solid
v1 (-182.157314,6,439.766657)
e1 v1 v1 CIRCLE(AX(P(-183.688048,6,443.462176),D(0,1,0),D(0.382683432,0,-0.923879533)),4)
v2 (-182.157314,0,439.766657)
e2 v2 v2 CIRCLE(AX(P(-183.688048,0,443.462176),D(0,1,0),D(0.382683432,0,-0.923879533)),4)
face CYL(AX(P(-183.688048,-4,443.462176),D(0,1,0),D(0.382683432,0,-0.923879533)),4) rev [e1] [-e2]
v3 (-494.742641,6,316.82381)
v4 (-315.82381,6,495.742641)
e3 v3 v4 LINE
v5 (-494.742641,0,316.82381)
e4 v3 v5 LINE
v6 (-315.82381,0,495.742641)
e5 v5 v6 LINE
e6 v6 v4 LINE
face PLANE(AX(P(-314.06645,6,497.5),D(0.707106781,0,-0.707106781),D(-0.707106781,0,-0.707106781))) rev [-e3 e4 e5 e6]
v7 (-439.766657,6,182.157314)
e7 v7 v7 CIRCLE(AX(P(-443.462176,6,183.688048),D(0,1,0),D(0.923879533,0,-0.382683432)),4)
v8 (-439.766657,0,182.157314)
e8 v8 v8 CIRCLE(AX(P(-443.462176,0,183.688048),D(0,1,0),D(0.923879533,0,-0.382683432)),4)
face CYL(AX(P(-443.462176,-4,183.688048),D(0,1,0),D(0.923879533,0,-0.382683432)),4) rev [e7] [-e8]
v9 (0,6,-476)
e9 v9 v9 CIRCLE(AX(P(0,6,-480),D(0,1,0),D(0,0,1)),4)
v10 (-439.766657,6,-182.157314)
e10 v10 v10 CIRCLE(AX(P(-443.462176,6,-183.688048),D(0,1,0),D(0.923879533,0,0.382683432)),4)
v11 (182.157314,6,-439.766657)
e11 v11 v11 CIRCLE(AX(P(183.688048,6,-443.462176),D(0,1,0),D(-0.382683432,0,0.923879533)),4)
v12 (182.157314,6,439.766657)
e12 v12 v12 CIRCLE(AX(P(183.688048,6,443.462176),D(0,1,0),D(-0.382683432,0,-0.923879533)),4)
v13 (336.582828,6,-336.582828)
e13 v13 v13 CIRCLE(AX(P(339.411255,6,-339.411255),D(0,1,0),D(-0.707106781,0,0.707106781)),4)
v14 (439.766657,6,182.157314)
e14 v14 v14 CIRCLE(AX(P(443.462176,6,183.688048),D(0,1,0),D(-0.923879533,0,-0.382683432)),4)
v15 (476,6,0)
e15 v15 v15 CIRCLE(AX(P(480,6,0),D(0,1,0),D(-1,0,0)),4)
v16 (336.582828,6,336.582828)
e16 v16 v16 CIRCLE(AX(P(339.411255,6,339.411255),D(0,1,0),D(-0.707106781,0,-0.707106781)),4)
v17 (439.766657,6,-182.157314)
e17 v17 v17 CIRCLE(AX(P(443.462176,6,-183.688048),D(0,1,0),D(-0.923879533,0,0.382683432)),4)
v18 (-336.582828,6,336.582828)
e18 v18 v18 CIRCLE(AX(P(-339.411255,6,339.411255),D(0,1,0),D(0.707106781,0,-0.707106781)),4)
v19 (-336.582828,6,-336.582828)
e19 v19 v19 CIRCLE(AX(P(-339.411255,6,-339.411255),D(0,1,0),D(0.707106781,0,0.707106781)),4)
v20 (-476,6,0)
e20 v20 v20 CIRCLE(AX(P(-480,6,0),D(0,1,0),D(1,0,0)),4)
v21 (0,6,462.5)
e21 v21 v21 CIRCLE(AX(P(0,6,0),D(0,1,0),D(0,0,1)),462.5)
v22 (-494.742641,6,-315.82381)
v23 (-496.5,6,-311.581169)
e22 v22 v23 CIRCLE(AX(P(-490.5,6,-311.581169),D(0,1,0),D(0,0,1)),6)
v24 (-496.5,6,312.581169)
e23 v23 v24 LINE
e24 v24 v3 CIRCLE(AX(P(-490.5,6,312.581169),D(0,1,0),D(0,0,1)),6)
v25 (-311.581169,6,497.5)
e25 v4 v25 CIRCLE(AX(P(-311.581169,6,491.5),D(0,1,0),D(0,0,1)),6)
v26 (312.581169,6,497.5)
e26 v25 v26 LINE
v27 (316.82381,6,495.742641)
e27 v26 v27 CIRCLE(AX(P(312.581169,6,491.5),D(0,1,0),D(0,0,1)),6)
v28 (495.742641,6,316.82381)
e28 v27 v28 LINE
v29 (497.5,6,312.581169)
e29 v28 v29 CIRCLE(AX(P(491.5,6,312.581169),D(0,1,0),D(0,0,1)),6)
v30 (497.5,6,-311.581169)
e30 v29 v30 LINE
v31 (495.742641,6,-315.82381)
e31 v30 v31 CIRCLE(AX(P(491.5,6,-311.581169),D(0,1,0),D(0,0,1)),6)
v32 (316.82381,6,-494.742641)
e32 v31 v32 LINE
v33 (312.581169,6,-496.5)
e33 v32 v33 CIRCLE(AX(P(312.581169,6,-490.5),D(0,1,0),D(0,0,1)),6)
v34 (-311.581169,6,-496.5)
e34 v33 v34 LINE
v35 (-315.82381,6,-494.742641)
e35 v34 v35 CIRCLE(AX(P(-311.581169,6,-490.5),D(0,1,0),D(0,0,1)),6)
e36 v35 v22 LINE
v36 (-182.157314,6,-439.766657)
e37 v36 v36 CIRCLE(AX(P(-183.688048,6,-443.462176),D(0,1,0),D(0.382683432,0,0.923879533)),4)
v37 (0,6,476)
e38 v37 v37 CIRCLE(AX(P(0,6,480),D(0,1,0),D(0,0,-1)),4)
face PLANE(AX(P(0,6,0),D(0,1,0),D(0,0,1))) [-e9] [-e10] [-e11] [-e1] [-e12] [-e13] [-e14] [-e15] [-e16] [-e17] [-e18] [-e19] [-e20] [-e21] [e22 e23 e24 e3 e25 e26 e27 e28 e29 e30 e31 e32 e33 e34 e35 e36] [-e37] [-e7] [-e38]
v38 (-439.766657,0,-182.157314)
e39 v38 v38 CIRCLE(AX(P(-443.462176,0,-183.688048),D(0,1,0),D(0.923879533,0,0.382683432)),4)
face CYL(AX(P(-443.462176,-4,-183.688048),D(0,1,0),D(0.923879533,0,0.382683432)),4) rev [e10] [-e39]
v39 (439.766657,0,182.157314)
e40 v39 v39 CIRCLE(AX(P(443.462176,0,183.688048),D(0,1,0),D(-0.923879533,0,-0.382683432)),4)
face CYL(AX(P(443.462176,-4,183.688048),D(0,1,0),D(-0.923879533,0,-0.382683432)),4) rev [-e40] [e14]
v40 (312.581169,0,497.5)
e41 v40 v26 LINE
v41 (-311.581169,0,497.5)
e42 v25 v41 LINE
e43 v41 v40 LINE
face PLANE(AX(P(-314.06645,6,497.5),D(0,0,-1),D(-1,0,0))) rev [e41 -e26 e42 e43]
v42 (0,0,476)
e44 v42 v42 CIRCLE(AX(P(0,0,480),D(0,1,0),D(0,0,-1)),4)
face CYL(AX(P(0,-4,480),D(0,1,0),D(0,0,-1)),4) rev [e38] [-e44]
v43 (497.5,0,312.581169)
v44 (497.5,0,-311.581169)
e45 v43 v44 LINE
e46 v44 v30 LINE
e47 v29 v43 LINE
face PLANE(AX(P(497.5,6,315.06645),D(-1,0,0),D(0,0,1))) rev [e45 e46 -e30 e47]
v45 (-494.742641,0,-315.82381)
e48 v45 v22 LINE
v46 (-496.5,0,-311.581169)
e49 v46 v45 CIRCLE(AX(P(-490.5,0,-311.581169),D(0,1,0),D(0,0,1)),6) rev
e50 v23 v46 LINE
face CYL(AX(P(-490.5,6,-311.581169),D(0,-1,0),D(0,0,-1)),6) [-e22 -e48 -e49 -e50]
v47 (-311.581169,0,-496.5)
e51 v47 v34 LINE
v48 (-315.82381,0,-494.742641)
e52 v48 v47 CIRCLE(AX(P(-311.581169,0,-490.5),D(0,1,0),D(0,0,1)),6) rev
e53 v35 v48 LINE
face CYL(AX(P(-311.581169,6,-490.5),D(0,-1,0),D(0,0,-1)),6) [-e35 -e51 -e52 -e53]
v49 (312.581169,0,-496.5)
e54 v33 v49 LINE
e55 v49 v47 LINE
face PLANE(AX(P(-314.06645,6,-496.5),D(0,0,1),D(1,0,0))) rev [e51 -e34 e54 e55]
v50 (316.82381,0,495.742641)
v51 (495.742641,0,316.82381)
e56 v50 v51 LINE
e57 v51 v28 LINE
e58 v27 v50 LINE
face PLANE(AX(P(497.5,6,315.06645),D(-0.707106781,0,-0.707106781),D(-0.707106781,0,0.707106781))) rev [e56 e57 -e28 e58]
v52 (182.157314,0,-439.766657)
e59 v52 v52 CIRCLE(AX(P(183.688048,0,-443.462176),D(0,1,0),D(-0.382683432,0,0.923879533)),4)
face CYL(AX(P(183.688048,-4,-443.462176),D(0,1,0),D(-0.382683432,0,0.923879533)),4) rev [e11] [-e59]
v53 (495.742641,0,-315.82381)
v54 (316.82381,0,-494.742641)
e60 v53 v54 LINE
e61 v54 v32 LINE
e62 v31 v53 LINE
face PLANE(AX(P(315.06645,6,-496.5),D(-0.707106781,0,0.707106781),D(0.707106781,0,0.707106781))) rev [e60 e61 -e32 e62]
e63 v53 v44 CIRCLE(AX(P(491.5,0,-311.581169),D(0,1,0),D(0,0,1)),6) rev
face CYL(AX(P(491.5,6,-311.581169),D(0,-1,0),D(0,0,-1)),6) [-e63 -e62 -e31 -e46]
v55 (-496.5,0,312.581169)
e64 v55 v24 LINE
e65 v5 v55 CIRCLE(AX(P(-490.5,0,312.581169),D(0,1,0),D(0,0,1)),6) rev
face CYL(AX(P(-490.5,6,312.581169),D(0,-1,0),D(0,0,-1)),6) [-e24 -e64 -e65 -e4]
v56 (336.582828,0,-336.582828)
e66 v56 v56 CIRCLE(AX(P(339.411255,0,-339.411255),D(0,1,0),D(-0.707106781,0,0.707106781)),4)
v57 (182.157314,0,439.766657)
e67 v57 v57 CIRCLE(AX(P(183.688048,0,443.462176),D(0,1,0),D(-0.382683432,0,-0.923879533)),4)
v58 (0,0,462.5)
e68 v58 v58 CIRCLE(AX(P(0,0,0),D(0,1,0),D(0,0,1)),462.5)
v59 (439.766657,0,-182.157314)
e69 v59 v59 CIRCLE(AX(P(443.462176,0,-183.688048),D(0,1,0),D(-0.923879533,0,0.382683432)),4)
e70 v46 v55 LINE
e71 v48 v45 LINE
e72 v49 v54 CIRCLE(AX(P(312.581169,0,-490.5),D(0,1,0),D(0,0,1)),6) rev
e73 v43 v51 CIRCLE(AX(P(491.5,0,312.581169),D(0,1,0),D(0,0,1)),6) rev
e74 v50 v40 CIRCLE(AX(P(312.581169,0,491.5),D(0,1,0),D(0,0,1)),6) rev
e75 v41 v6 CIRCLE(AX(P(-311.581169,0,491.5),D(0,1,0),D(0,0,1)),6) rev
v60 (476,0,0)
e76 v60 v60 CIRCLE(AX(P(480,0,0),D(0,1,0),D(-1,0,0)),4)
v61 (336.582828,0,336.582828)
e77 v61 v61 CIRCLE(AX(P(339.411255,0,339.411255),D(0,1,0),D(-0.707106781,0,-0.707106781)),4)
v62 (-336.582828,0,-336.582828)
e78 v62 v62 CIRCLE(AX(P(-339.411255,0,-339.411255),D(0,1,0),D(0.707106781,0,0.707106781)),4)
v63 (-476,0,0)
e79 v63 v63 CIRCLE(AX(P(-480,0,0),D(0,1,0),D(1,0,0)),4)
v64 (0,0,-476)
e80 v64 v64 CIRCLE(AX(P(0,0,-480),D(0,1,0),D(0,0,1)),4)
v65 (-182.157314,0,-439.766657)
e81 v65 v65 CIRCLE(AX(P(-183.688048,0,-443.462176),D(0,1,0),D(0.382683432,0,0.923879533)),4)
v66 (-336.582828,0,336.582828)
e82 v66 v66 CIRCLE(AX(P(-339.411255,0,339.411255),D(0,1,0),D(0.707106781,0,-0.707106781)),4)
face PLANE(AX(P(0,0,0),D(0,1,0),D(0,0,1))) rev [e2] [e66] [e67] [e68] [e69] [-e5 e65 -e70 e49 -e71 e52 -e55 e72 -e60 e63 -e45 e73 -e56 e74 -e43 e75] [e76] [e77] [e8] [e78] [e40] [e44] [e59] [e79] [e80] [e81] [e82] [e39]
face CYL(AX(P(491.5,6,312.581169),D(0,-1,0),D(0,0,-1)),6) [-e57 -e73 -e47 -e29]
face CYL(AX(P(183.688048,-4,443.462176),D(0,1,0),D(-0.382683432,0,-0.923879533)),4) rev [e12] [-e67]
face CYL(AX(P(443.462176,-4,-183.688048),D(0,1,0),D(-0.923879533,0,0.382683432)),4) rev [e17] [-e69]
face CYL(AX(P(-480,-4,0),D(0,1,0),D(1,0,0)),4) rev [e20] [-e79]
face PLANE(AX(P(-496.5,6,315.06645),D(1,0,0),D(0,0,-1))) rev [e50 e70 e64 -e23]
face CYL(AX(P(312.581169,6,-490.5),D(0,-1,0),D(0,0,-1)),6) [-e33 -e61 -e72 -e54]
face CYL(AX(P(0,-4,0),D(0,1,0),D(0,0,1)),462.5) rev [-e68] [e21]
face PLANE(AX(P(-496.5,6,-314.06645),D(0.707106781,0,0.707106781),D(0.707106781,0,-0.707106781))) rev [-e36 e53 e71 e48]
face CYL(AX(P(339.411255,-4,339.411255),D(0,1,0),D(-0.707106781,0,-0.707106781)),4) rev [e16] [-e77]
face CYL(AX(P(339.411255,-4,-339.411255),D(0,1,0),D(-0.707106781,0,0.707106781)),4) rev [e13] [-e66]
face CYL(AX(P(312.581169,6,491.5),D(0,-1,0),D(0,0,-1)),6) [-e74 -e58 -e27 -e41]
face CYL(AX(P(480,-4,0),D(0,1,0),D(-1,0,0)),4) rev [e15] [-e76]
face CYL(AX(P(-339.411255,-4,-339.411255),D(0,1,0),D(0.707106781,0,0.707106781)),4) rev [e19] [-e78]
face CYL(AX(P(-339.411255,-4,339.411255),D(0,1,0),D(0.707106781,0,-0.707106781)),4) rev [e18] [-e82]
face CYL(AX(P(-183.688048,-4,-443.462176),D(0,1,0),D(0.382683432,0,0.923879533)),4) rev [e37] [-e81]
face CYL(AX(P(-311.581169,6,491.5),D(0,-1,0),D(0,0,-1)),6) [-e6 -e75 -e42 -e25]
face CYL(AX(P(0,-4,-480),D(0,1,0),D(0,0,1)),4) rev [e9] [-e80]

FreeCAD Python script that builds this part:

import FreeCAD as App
import Part
import Sketcher

V = App.Vector
Q = App.Units.Quantity


def edges_at(feature, points):
    """Names of the edges that pass closest to the given points."""
    edges = feature.Shape.Edges
    near = lambda p: min(range(len(edges)), key=lambda i: edges[i].distToShape(Part.Vertex(*p))[0])
    return sorted({f"Edge{near(p) + 1}" for p in points})

doc = App.newDocument("Part")
body = doc.addObject("PartDesign::Body", "Body")

sketch1 = doc.addObject("Sketcher::SketchObject", "Sketch")
body.addObject(sketch1)
sketch1.AttachmentSupport = (doc.XZ_Plane, [""])
sketch1.MapMode = "FlatFace"
sketch1.addGeometry([
    Part.LineSegment(V(498, -314, 0), V(315, -496, 0)),
    Part.LineSegment(V(315, -496, 0), V(-314, -496, 0)),
    Part.LineSegment(V(-314, -496, 0), V(-496, -314, 0)),
    Part.LineSegment(V(-496, -314, 0), V(-496, 315, 0)),
    Part.LineSegment(V(-496, 315, 0), V(-314, 498, 0)),
    Part.LineSegment(V(-314, 498, 0), V(315, 498, 0)),
    Part.LineSegment(V(315, 498, 0), V(498, 315, 0)),
    Part.LineSegment(V(498, 315, 0), V(498, -314, 0)),
], False)
sketch1.addConstraint([
    Sketcher.Constraint("Coincident", 0, 2, 1, 1),
    Sketcher.Constraint("Coincident", 1, 2, 2, 1),
    Sketcher.Constraint("Coincident", 2, 2, 3, 1),
    Sketcher.Constraint("Coincident", 3, 2, 4, 1),
    Sketcher.Constraint("Coincident", 4, 2, 5, 1),
    Sketcher.Constraint("Coincident", 5, 2, 6, 1),
    Sketcher.Constraint("Coincident", 6, 2, 7, 1),
    Sketcher.Constraint("Coincident", 7, 2, 0, 1),
    Sketcher.Constraint("Horizontal", 1),
    Sketcher.Constraint("Vertical", 3),
    Sketcher.Constraint("Horizontal", 5),
    Sketcher.Constraint("Vertical", 7),
    Sketcher.Constraint("Perpendicular", 0, 2),
    Sketcher.Constraint("Perpendicular", 2, 4),
    Sketcher.Constraint("Perpendicular", 4, 6),
    Sketcher.Constraint("Horizontal", 3, 2, 6, 2),
    Sketcher.Constraint("Horizontal", 2, 2, 7, 2),
    Sketcher.Constraint("Vertical", 1, 2, 4, 2),
    Sketcher.Constraint("Vertical", 0, 2, 5, 2),
    Sketcher.Constraint("Equal", 5, 3),
    Sketcher.Constraint("Distance", 0, Q("258 mm")),
    Sketcher.Constraint("DistanceY", 1, 2, 4, 2, Q("994 mm")),
    Sketcher.Constraint("DistanceY", 0, 2, -1, 1, Q("496.5 mm")),
    Sketcher.Constraint("DistanceX", 2, 2, -1, 1, Q("496.5 mm")),
])
pad1 = doc.addObject("PartDesign::Pad", "Pad")
body.addObject(pad1)
pad1.Profile = sketch1
pad1.Length = 6
pad1.Reversed = True

sketch2 = doc.addObject("Sketcher::SketchObject", "Sketch001")
body.addObject(sketch2)
sketch2.AttachmentSupport = (doc.XZ_Plane, [""])
sketch2.MapMode = "FlatFace"
sketch2.AttachmentOffset = App.Placement(V(0, 0, -6), App.Rotation())
sketch2.addGeometry(Part.Circle(V(0, 0, 0), V(0, 0, 1), 462), False)
sketch2.addConstraint([
    Sketcher.Constraint("Coincident", 0, 3, -1, 1),
    Sketcher.Constraint("Diameter", 0, Q("925 mm")),
])
pocket1 = doc.addObject("PartDesign::Pocket", "Pocket")
body.addObject(pocket1)
pocket1.Profile = sketch2
pocket1.Length = 10
pocket1.Reversed = True

sketch3 = doc.addObject("Sketcher::SketchObject", "Sketch002")
body.addObject(sketch3)
sketch3.AttachmentSupport = (doc.XZ_Plane, [""])
sketch3.MapMode = "FlatFace"
sketch3.AttachmentOffset = App.Placement(V(0, 0, -6), App.Rotation())
sketch3.addGeometry(Part.Circle(V(0, -480, 0), V(0, 0, 1), 4), False)
sketch3.addConstraint([
    Sketcher.Constraint("PointOnObject", 0, 3, -2),
    Sketcher.Constraint("Diameter", 0, Q("8 mm")),
    Sketcher.Constraint("DistanceY", 0, 3, -1, 1, Q("480 mm")),
])
pocket2 = doc.addObject("PartDesign::Pocket", "Pocket001")
body.addObject(pocket2)
pocket2.Profile = sketch3
pocket2.Length = 10
pocket2.Reversed = True
doc.recompute()

polarpattern = doc.addObject("PartDesign::PolarPattern", "PolarPattern")
body.addObject(polarpattern)
polarpattern.Originals = [pocket2]
polarpattern.Axis = (doc.Y_Axis, [""])
polarpattern.Angle = 360
polarpattern.Occurrences = 16
body.Tip = polarpattern
doc.recompute()

fillet = doc.addObject("PartDesign::Fillet", "Fillet")
body.addObject(fillet)
fillet.Base = (polarpattern, edges_at(polarpattern, [
    (315.066, 3, -496.5),
    (497.5, 3, -314.066),
    (497.5, 3, 315.066),
    (315.066, 3, 497.5),
    (-314.066, 3, 497.5),
    (-496.5, 3, 315.066),
    (-496.5, 3, -314.066),
    (-314.066, 3, -496.5),
]))
fillet.Radius = 6

doc.recompute()
